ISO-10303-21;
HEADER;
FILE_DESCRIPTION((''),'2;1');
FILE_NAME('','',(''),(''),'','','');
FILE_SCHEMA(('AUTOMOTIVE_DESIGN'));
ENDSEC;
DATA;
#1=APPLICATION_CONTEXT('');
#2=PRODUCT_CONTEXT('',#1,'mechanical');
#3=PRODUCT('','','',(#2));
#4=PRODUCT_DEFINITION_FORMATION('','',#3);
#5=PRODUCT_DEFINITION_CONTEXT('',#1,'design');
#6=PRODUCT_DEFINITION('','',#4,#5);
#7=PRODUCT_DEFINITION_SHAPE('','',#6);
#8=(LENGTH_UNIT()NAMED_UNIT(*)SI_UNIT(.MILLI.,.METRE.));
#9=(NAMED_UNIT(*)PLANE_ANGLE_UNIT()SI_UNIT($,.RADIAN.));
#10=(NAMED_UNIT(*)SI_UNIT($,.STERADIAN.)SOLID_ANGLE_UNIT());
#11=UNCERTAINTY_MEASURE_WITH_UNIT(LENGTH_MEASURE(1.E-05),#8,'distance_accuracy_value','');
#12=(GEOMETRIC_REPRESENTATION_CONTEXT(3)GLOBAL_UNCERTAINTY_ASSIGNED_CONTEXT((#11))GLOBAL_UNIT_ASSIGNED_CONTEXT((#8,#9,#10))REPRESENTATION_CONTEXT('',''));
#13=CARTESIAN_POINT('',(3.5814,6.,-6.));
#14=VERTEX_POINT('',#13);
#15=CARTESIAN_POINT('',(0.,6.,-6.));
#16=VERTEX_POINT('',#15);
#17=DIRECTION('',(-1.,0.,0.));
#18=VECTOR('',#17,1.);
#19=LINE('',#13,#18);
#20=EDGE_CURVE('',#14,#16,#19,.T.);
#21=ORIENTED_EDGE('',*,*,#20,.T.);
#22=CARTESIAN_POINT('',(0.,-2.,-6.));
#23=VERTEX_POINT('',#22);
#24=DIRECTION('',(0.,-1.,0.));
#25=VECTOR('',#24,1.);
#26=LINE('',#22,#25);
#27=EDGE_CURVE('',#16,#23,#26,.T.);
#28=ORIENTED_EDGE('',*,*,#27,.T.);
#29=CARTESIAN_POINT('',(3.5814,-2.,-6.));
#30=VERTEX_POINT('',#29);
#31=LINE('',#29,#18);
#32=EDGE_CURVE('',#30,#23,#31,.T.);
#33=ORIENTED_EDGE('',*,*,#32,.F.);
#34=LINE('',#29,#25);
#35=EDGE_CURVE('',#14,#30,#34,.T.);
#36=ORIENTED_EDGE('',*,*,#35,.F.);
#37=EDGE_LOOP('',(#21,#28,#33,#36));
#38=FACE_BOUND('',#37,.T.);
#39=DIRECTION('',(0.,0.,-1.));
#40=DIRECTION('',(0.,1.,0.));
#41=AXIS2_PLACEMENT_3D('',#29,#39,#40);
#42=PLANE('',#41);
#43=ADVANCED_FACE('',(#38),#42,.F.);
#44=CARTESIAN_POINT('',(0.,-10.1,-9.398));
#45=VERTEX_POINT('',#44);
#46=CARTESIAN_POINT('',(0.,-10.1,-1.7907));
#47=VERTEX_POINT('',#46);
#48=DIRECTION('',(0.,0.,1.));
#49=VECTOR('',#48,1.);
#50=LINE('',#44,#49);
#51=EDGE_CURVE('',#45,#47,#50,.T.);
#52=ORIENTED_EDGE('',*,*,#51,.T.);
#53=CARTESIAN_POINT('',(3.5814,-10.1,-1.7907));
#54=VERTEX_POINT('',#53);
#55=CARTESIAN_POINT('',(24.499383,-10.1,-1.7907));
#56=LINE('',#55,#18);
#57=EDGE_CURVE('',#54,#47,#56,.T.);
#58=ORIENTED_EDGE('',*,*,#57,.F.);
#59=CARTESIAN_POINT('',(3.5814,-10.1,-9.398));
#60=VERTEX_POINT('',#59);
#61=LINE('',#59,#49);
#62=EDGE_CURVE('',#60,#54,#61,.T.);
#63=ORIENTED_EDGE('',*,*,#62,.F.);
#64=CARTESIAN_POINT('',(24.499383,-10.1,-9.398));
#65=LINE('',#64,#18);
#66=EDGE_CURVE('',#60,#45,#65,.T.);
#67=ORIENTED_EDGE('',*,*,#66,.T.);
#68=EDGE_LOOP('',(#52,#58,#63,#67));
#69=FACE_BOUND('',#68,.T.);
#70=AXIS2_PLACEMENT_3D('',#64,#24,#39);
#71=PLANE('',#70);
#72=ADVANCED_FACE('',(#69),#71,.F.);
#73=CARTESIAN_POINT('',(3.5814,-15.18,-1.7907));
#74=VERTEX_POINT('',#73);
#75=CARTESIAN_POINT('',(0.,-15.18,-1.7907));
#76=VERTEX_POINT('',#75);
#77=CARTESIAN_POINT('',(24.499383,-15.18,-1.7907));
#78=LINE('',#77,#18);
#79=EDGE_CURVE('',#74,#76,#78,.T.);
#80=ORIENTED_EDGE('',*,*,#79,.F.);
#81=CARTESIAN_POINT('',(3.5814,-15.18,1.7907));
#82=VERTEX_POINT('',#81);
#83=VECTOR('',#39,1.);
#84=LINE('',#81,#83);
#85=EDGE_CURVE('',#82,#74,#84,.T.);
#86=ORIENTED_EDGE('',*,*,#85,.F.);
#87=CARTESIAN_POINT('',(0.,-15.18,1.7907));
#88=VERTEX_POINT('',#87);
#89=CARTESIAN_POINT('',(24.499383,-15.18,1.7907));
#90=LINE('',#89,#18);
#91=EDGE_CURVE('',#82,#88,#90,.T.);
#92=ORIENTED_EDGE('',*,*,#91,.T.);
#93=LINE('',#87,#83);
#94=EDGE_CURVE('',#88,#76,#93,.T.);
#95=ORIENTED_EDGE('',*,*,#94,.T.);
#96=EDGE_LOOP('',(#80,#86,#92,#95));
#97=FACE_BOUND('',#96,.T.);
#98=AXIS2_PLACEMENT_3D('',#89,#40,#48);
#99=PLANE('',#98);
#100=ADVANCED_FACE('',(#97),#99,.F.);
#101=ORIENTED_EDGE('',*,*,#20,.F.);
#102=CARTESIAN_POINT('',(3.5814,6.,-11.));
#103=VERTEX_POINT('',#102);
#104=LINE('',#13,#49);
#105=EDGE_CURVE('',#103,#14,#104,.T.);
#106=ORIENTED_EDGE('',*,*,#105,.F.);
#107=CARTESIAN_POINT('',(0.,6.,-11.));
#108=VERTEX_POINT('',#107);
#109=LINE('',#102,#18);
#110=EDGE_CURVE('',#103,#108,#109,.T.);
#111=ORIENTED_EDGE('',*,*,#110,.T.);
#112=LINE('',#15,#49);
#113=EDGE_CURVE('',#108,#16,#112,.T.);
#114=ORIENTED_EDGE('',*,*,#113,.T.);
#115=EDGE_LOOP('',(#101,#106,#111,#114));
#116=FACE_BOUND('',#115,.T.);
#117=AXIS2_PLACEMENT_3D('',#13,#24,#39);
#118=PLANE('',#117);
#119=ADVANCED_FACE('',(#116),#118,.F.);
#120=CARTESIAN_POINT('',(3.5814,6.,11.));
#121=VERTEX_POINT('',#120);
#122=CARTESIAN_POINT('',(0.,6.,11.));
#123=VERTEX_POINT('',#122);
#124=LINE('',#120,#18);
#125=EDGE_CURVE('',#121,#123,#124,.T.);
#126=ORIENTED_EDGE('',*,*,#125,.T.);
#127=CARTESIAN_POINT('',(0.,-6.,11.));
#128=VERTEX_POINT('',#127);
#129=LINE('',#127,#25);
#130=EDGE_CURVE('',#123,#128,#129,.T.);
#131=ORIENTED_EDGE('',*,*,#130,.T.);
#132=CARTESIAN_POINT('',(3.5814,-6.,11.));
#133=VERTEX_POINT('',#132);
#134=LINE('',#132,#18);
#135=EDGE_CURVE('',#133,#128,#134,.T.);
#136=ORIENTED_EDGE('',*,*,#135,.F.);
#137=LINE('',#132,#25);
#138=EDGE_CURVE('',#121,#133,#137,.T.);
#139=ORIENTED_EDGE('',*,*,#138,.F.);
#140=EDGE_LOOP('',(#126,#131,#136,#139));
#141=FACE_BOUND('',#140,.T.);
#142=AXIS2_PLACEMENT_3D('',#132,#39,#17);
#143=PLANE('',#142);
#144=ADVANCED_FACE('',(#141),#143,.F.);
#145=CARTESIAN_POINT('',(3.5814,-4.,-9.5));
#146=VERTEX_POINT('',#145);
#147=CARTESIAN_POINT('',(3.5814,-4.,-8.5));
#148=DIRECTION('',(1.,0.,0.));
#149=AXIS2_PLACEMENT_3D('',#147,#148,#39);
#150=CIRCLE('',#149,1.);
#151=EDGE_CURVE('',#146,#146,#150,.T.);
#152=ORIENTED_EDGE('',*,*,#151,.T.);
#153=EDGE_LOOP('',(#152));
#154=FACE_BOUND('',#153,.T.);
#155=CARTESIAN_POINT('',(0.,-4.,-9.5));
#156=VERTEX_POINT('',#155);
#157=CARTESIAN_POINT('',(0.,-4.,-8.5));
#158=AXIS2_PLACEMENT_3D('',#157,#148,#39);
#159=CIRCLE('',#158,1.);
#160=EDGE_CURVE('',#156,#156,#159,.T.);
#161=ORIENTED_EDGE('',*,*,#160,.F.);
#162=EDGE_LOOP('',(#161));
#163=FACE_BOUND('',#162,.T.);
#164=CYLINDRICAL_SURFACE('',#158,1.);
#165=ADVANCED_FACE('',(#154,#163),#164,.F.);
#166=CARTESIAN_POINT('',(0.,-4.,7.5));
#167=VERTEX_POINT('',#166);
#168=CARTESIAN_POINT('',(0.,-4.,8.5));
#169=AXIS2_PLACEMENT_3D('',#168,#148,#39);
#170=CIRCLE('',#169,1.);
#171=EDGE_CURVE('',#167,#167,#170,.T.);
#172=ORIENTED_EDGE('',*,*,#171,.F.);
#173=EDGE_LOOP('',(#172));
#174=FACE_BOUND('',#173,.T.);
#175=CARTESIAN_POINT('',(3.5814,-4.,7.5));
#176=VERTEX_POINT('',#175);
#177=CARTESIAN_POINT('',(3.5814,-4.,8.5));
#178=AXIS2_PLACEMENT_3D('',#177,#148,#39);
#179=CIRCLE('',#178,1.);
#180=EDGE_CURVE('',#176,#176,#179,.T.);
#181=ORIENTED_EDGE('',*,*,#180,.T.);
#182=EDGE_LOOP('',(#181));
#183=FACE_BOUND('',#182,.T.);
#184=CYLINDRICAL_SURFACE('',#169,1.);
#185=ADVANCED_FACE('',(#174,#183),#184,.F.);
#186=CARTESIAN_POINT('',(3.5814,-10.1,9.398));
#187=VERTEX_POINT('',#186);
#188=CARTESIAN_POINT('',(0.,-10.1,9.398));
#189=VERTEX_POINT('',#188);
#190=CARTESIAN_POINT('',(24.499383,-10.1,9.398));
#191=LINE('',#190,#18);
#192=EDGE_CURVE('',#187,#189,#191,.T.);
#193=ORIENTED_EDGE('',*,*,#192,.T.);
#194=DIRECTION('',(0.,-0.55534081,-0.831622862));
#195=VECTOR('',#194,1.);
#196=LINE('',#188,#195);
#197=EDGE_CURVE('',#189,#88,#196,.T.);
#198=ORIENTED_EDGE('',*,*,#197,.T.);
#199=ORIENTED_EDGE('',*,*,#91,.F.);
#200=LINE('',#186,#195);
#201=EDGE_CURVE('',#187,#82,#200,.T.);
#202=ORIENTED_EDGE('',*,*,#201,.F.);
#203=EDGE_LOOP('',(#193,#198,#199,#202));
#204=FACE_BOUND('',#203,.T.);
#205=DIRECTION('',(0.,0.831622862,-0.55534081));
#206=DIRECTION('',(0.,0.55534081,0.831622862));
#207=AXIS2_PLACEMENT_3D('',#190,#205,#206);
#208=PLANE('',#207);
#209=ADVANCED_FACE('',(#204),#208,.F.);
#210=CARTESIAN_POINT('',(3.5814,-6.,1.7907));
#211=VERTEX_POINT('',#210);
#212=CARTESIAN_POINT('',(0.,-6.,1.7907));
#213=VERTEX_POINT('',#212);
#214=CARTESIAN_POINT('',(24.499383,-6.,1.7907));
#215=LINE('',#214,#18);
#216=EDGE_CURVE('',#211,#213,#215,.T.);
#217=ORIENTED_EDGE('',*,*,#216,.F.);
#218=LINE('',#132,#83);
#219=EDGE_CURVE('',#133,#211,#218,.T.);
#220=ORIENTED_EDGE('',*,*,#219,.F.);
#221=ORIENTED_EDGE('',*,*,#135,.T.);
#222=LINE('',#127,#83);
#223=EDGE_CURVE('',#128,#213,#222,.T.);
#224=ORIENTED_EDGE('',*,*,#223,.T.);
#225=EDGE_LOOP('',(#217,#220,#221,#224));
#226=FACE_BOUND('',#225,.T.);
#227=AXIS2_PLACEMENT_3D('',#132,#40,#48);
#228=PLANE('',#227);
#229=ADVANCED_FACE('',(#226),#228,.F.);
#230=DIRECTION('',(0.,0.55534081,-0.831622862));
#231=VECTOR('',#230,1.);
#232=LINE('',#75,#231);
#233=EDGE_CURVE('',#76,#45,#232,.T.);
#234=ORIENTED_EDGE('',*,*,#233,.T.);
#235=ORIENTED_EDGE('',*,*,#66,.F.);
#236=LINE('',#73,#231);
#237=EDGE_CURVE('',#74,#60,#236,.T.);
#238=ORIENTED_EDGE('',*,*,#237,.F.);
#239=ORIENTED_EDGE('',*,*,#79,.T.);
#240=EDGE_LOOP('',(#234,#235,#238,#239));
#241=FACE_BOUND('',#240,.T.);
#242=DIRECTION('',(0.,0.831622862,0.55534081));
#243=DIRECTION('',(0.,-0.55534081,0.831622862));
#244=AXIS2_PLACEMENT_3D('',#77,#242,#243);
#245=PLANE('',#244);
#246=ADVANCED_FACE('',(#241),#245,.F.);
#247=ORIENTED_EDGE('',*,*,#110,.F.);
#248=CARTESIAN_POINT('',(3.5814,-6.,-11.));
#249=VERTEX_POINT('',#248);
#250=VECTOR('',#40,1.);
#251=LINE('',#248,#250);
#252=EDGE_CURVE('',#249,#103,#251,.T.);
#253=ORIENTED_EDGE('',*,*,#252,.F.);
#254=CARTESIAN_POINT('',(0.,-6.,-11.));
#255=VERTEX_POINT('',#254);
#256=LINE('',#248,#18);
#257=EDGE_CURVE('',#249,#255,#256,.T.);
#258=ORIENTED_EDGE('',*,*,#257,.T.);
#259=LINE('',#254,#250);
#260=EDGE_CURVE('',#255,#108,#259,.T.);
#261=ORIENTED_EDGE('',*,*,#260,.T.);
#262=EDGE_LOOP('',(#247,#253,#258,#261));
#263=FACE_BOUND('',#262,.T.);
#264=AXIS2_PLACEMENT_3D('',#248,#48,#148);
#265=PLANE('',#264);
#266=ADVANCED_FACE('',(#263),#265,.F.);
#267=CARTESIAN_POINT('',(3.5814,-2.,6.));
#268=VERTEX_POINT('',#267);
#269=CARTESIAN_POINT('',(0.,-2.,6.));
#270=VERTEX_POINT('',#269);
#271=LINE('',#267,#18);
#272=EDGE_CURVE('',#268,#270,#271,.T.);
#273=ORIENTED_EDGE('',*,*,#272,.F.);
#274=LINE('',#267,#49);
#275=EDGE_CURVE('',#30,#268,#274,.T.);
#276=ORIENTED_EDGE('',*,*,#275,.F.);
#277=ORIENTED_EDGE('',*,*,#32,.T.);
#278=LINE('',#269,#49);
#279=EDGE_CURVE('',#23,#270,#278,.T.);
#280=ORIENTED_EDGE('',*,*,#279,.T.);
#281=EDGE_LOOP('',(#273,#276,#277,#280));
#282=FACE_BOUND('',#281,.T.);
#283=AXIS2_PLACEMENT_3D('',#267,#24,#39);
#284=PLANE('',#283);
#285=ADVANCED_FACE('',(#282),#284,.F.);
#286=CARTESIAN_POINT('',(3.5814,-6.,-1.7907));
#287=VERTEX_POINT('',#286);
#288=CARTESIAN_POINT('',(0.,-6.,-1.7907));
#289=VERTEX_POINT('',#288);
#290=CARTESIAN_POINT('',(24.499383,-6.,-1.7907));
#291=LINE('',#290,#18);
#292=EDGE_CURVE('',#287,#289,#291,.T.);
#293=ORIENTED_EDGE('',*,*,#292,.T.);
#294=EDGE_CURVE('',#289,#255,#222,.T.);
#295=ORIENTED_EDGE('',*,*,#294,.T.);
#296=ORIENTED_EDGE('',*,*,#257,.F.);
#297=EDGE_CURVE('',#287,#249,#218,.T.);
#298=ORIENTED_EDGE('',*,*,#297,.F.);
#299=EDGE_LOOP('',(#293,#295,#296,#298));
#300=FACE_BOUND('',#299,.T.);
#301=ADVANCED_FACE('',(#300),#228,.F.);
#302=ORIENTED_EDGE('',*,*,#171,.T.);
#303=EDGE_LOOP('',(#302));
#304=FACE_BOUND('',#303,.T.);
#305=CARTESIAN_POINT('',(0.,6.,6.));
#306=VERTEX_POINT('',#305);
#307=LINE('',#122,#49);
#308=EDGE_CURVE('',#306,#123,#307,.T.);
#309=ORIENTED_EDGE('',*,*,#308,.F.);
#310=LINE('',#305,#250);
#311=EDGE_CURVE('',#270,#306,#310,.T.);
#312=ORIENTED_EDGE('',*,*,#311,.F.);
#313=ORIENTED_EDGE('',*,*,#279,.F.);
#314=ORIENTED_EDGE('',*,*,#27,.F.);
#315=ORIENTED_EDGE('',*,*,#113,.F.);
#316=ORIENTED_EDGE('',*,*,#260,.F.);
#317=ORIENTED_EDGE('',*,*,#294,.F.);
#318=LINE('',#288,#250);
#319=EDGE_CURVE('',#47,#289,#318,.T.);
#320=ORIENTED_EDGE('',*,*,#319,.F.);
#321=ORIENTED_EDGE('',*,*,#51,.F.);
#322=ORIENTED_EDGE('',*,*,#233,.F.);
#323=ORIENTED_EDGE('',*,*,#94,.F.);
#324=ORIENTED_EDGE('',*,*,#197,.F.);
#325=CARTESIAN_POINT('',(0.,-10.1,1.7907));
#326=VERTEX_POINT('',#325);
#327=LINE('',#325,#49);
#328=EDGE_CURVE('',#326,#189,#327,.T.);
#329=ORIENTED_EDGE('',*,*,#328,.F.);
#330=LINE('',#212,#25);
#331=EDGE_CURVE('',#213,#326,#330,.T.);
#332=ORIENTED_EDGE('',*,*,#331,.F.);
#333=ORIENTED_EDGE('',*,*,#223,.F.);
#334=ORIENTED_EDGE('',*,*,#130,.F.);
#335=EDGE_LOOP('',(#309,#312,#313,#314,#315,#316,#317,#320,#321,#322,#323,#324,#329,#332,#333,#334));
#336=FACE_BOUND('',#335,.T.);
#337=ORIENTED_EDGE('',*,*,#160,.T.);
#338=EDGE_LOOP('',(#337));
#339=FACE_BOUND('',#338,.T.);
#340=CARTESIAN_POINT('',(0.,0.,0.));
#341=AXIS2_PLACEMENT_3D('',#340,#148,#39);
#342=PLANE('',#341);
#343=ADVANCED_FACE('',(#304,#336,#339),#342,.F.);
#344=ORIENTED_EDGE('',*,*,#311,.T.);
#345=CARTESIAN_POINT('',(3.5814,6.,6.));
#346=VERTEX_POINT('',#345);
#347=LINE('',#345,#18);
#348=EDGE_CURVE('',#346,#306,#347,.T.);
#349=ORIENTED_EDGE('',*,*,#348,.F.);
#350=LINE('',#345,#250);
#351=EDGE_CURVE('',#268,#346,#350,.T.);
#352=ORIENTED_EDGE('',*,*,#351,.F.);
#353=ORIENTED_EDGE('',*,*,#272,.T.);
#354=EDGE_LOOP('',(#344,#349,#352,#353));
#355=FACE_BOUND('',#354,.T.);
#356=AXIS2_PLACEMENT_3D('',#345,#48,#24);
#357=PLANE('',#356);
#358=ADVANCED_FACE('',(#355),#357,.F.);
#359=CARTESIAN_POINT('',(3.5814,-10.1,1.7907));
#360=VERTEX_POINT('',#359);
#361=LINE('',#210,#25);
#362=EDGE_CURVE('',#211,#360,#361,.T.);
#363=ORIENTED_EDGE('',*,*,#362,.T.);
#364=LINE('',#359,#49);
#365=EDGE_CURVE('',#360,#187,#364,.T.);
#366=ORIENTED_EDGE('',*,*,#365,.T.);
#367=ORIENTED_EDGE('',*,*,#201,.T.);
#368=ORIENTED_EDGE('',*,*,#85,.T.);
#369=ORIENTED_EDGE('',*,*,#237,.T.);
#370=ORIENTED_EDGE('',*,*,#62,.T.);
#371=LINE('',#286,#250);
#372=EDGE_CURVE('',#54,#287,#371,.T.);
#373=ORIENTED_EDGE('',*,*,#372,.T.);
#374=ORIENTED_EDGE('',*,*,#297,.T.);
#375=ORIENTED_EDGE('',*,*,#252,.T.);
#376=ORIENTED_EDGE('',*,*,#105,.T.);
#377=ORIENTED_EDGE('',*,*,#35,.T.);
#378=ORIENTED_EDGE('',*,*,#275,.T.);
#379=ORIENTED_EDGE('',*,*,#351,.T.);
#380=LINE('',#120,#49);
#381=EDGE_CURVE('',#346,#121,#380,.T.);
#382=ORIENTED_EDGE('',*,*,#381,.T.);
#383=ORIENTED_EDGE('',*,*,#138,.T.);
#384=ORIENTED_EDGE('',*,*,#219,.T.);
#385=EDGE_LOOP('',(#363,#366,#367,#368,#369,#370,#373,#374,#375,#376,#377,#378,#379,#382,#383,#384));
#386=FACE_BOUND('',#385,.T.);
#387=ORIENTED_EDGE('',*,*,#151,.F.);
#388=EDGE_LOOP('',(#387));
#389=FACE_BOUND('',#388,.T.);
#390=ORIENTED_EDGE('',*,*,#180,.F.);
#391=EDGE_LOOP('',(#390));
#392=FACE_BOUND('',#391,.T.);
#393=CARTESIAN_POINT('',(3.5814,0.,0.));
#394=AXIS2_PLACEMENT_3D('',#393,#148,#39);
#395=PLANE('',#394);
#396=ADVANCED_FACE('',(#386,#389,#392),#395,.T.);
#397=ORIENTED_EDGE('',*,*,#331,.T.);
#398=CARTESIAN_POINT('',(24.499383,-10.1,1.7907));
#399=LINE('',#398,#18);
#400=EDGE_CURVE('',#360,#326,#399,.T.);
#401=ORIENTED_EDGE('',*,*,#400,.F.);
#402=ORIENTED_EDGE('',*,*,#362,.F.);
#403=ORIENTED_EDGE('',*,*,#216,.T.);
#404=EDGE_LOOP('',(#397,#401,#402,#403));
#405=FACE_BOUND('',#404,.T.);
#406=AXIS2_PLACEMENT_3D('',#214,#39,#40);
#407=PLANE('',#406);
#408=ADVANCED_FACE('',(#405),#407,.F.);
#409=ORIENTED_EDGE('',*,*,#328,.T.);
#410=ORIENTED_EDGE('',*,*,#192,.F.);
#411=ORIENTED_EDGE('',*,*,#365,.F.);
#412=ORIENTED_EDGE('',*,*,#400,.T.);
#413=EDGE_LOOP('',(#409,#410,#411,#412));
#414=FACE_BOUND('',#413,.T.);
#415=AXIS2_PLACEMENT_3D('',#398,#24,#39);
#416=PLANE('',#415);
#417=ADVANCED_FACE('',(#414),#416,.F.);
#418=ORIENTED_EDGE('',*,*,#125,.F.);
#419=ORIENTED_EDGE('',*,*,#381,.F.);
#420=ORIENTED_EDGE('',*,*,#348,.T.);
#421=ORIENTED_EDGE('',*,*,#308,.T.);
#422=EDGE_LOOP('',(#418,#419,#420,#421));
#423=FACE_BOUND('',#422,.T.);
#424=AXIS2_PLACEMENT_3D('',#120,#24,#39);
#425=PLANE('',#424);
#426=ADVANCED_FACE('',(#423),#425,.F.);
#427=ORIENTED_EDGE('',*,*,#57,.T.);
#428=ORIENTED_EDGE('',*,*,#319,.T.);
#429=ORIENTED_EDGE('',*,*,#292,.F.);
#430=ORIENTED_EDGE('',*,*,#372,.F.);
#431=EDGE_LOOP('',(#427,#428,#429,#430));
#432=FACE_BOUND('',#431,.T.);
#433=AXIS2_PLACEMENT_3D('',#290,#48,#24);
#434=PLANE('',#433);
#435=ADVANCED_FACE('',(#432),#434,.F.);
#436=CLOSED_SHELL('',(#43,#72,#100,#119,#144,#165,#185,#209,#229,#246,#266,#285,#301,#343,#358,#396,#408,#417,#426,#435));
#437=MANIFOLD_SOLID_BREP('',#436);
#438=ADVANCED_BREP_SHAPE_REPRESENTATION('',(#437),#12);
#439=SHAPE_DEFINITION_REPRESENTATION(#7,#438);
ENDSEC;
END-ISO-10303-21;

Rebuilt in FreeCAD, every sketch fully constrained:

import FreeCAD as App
import Part
import Sketcher

V = App.Vector
Q = App.Units.Quantity


def add_polygon(sketch, points):
    """Adds a closed chain of lines whose ends are joined by coincident constraints."""
    first, n = sketch.GeometryCount, len(points)
    for a, b in zip(points, points[1:] + points[:1]):
        sketch.addGeometry(Part.LineSegment(App.Vector(*a, 0), App.Vector(*b, 0)), False)
    for i in range(n):
        sketch.addConstraint(Sketcher.Constraint("Coincident", first + i, 2, first + (i + 1) % n, 1))

doc = App.newDocument("Part")
params = doc.addObject("Spreadsheet::Sheet", "Params")
for row, (alias, value) in enumerate([
    ("sketch1_width", "8 mm"),
    ("sketch1_width2", "12 mm"),
    ("sketch1_height", "5 mm"),
    ("pad1_length", "3.5814 mm"),
    ("sketch2_diameter", "2 mm"),
    ("sketch3_width", "4.1 mm"),
    ("pad2_length", "3.5814 mm"),
], start=1):
    params.set(f"A{row}", alias)
    params.set(f"B{row}", "=" + value)
    params.setAlias(f"B{row}", alias)

body = doc.addObject("PartDesign::Body", "Body")

# Sketch on YZ plane
sketch1 = body.newObject("Sketcher::SketchObject", "Sketch")
sketch1.AttachmentSupport = (doc.getObject("YZ_Plane"), [""])
sketch1.MapMode = "FlatFace"
add_polygon(sketch1, [(-2, 6), (6, 6), (6, 11), (-6, 11), (-6, -11), (6, -11), (6, -6), (-2, -6)])  # lines 0-7
sketch1.addConstraint(Sketcher.Constraint("Horizontal", 0))
sketch1.addConstraint(Sketcher.Constraint("Vertical", 1))
sketch1.addConstraint(Sketcher.Constraint("Horizontal", 2))
sketch1.addConstraint(Sketcher.Constraint("Vertical", 3))
sketch1.addConstraint(Sketcher.Constraint("Horizontal", 4))
sketch1.addConstraint(Sketcher.Constraint("Vertical", 5))
sketch1.addConstraint(Sketcher.Constraint("Horizontal", 6))
sketch1.addConstraint(Sketcher.Constraint("Vertical", 7))
sketch1.addConstraint(Sketcher.Constraint("Symmetric", 1, 2, 3, 2, -1, 1))
sketch1.addConstraint(Sketcher.Constraint("Symmetric", 0, 2, 5, 2, -1))
sketch1.addConstraint(Sketcher.Constraint("Equal", 4, 7))
sketch1.addConstraint(Sketcher.Constraint("DistanceX", 0, 1, 0, 2, Q("8 mm")))
sketch1.addConstraint(Sketcher.Constraint("DistanceX", 2, 2, 2, 1, Q("12 mm")))
sketch1.addConstraint(Sketcher.Constraint("DistanceY", 1, 1, 1, 2, Q("5 mm")))
sketch1.setExpression("Constraints[19]", "Params.sketch1_width")
sketch1.setExpression("Constraints[20]", "Params.sketch1_width2")
sketch1.setExpression("Constraints[21]", "Params.sketch1_height")
pad1 = body.newObject("PartDesign::Pad", "Pad")
pad1.Profile = sketch1
pad1.setExpression("Length", "Params.pad1_length")

# Sketch on YZ plane
sketch2 = body.newObject("Sketcher::SketchObject", "Sketch001")
sketch2.AttachmentSupport = (doc.getObject("YZ_Plane"), [""])
sketch2.MapMode = "FlatFace"
sketch2.AttachmentOffset = App.Placement(V(0, 0, 3.5814), App.Rotation())
sketch2.addGeometry(Part.Circle(V(-4, 8.5, 0), V(0, 0, 1), 1), False)
sketch2.addGeometry(Part.Circle(V(-4, -8.5, 0), V(0, 0, 1), 1), False)
sketch2.addConstraint(Sketcher.Constraint("Equal", 0, 1))
sketch2.addConstraint(Sketcher.Constraint("Symmetric", 0, 3, 1, 3, -1))
sketch2.addConstraint(Sketcher.Constraint("Diameter", 0, Q("2 mm")))
sketch2.addConstraint(Sketcher.Constraint("DistanceX", 0, 3, -1, 1, Q("4 mm")))
sketch2.addConstraint(Sketcher.Constraint("DistanceY", 1, 3, 0, 3, Q("17 mm")))
sketch2.setExpression("Constraints[2]", "Params.sketch2_diameter")
pocket1 = body.newObject("PartDesign::Pocket", "Pocket")
pocket1.Profile = sketch2
pocket1.Type = "ThroughAll"

# Sketch on YZ plane
sketch3 = body.newObject("Sketcher::SketchObject", "Sketch002")
sketch3.AttachmentSupport = (doc.getObject("YZ_Plane"), [""])
sketch3.MapMode = "FlatFace"
add_polygon(sketch3, [(-10.1, 1.8), (-10.1, 9.4), (-15.2, 1.8), (-15.2, -1.8), (-10.1, -9.4), (-10.1, -1.8), (-6, -1.8), (-6, 1.8)])  # lines 0-7
sketch3.addConstraint(Sketcher.Constraint("Vertical", 0))
sketch3.addConstraint(Sketcher.Constraint("Vertical", 2))
sketch3.addConstraint(Sketcher.Constraint("Vertical", 4))
sketch3.addConstraint(Sketcher.Constraint("Horizontal", 5))
sketch3.addConstraint(Sketcher.Constraint("Vertical", 6))
sketch3.addConstraint(Sketcher.Constraint("Horizontal", 7))
sketch3.addConstraint(Sketcher.Constraint("Symmetric", 0, 2, 3, 2, -1))
sketch3.addConstraint(Sketcher.Constraint("Horizontal", 2, 2, 4, 2))
sketch3.addConstraint(Sketcher.Constraint("Horizontal", 1, 2, 6, 2))
sketch3.addConstraint(Sketcher.Constraint("Equal", 0, 4))
sketch3.addConstraint(Sketcher.Constraint("DistanceX", 5, 1, 5, 2, Q("4.1 mm")))
sketch3.addConstraint(Sketcher.Constraint("DistanceX", 5, 2, -1, 1, Q("6 mm")))
sketch3.addConstraint(Sketcher.Constraint("DistanceX", 1, 2, -1, 1, Q("15.18 mm")))
sketch3.addConstraint(Sketcher.Constraint("DistanceY", 0, 1, 0, 2, Q("7.6073 mm")))
sketch3.addConstraint(Sketcher.Constraint("DistanceY", 2, 2, 2, 1, Q("3.5814 mm")))
sketch3.setExpression("Constraints[18]", "Params.sketch3_width")
pad2 = body.newObject("PartDesign::Pad", "Pad001")
pad2.Profile = sketch3
pad2.setExpression("Length", "Params.pad2_length")

doc.recompute()
